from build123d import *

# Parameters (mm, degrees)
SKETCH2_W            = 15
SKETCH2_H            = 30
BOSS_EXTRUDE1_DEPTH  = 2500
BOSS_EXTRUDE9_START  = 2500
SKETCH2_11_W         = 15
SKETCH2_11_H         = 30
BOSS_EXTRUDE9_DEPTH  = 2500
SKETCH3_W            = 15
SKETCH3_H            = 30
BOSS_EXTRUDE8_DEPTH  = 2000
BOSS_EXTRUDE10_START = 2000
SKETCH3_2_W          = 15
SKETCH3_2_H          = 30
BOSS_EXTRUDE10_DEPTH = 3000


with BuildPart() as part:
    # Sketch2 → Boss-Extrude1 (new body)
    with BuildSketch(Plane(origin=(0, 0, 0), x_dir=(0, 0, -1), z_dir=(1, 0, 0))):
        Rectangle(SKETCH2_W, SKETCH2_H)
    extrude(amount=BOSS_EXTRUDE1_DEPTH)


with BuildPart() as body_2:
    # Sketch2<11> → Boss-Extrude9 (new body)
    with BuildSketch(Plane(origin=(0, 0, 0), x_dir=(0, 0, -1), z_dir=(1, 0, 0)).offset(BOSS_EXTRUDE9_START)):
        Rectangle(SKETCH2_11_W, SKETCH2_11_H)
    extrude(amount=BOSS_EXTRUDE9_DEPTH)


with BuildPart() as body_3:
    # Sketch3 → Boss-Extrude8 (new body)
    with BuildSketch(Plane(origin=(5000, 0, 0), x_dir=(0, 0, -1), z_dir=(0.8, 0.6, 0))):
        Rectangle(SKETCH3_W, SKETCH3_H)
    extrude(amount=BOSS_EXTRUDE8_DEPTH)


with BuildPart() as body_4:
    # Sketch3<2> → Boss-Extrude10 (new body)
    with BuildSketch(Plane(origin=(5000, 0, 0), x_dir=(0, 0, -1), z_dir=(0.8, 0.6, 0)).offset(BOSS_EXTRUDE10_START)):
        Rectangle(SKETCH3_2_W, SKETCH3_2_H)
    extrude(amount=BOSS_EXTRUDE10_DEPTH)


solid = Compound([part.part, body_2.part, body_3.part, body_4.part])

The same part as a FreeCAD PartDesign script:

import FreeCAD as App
import Part
import Sketcher
from FreeCAD import Vector

doc = App.newDocument("Part")
body = doc.addObject("PartDesign::Body", "Body")

sketch1 = doc.addObject("Sketcher::SketchObject", "Sketch")
body.addObject(sketch1)
sketch1.AttachmentSupport = (doc.YZ_Plane, [""])
sketch1.MapMode = "FlatFace"
sketch1.addGeometry(Part.LineSegment(Vector(15, 8, 0), Vector(-15, 8, 0)), False)
sketch1.addGeometry(Part.LineSegment(Vector(-15, 8, 0), Vector(-15, -8, 0)), False)
sketch1.addGeometry(Part.LineSegment(Vector(-15, -8, 0), Vector(15, -8, 0)), False)
sketch1.addGeometry(Part.LineSegment(Vector(15, -8, 0), Vector(15, 8, 0)), False)
sketch1.addConstraint(Sketcher.Constraint("Coincident", 0, 2, 1, 1))
sketch1.addConstraint(Sketcher.Constraint("Coincident", 1, 2, 2, 1))
sketch1.addConstraint(Sketcher.Constraint("Coincident", 2, 2, 3, 1))
sketch1.addConstraint(Sketcher.Constraint("Coincident", 3, 2, 0, 1))
sketch1.addConstraint(Sketcher.Constraint("Horizontal", 0))
sketch1.addConstraint(Sketcher.Constraint("Vertical", 1))
sketch1.addConstraint(Sketcher.Constraint("Horizontal", 2))
sketch1.addConstraint(Sketcher.Constraint("Vertical", 3))
sketch1.addConstraint(Sketcher.Constraint("Symmetric", 0, 2, 2, 2, -1, 1))
sketch1.addConstraint(Sketcher.Constraint("DistanceX", 0, 2, 0, 1, 30.0))
sketch1.addConstraint(Sketcher.Constraint("DistanceY", 1, 2, 1, 1, 15.0))
pad1 = doc.addObject("PartDesign::Pad", "Pad")
body.addObject(pad1)
pad1.Profile = sketch1
pad1.Length = 2500
body2 = doc.addObject("PartDesign::Body", "Body001")

sketch2 = doc.addObject("Sketcher::SketchObject", "Sketch001")
body2.addObject(sketch2)
sketch2.AttachmentSupport = (doc.getObject("YZ_Plane001"), [""])
sketch2.MapMode = "FlatFace"
sketch2.AttachmentOffset = App.Placement(Vector(0, 0, 2500), App.Rotation())
sketch2.addGeometry(Part.LineSegment(Vector(15, 8, 0), Vector(-15, 8, 0)), False)
sketch2.addGeometry(Part.LineSegment(Vector(-15, 8, 0), Vector(-15, -8, 0)), False)
sketch2.addGeometry(Part.LineSegment(Vector(-15, -8, 0), Vector(15, -8, 0)), False)
sketch2.addGeometry(Part.LineSegment(Vector(15, -8, 0), Vector(15, 8, 0)), False)
sketch2.addConstraint(Sketcher.Constraint("Coincident", 0, 2, 1, 1))
sketch2.addConstraint(Sketcher.Constraint("Coincident", 1, 2, 2, 1))
sketch2.addConstraint(Sketcher.Constraint("Coincident", 2, 2, 3, 1))
sketch2.addConstraint(Sketcher.Constraint("Coincident", 3, 2, 0, 1))
sketch2.addConstraint(Sketcher.Constraint("Horizontal", 0))
sketch2.addConstraint(Sketcher.Constraint("Vertical", 1))
sketch2.addConstraint(Sketcher.Constraint("Horizontal", 2))
sketch2.addConstraint(Sketcher.Constraint("Vertical", 3))
sketch2.addConstraint(Sketcher.Constraint("Symmetric", 0, 2, 2, 2, -1, 1))
sketch2.addConstraint(Sketcher.Constraint("DistanceX", 0, 2, 0, 1, 30.0))
sketch2.addConstraint(Sketcher.Constraint("DistanceY", 1, 2, 1, 1, 15.0))
pad2 = doc.addObject("PartDesign::Pad", "Pad001")
body2.addObject(pad2)
pad2.Profile = sketch2
pad2.Length = 2500
body3 = doc.addObject("PartDesign::Body", "Body002")

sketch3 = doc.addObject("Sketcher::SketchObject", "Sketch002")
body3.addObject(sketch3)
sketch3.Placement = App.Placement(Vector(5000, 0, 0), App.Rotation(Vector(0, 0, -1), Vector(-0.6, 0.8, 0), Vector(0.8, 0.6, 0), "ZXY"))
sketch3.addGeometry(Part.LineSegment(Vector(-8, 15, 0), Vector(-8, -15, 0)), False)
sketch3.addGeometry(Part.LineSegment(Vector(-8, -15, 0), Vector(8, -15, 0)), False)
sketch3.addGeometry(Part.LineSegment(Vector(8, -15, 0), Vector(8, 15, 0)), False)
sketch3.addGeometry(Part.LineSegment(Vector(8, 15, 0), Vector(-8, 15, 0)), False)
sketch3.addConstraint(Sketcher.Constraint("Coincident", 0, 2, 1, 1))
sketch3.addConstraint(Sketcher.Constraint("Coincident", 1, 2, 2, 1))
sketch3.addConstraint(Sketcher.Constraint("Coincident", 2, 2, 3, 1))
sketch3.addConstraint(Sketcher.Constraint("Coincident", 3, 2, 0, 1))
sketch3.addConstraint(Sketcher.Constraint("Vertical", 0))
sketch3.addConstraint(Sketcher.Constraint("Horizontal", 1))
sketch3.addConstraint(Sketcher.Constraint("Vertical", 2))
sketch3.addConstraint(Sketcher.Constraint("Horizontal", 3))
sketch3.addConstraint(Sketcher.Constraint("Symmetric", 0, 2, 2, 2, -1, 1))
sketch3.addConstraint(Sketcher.Constraint("DistanceX", 1, 1, 1, 2, 15.0))
sketch3.addConstraint(Sketcher.Constraint("DistanceY", 0, 2, 0, 1, 30.0))
pad3 = doc.addObject("PartDesign::Pad", "Pad002")
body3.addObject(pad3)
pad3.Profile = sketch3
pad3.Length = 2000
body4 = doc.addObject("PartDesign::Body", "Body003")

sketch4 = doc.addObject("Sketcher::SketchObject", "Sketch003")
body4.addObject(sketch4)
sketch4.Placement = App.Placement(Vector(6600, 1200, 0), App.Rotation(Vector(0, 0, -1), Vector(-0.6, 0.8, 0), Vector(0.8, 0.6, 0), "ZXY"))
sketch4.addGeometry(Part.LineSegment(Vector(-8, 15, 0), Vector(-8, -15, 0)), False)
sketch4.addGeometry(Part.LineSegment(Vector(-8, -15, 0), Vector(8, -15, 0)), False)
sketch4.addGeometry(Part.LineSegment(Vector(8, -15, 0), Vector(8, 15, 0)), False)
sketch4.addGeometry(Part.LineSegment(Vector(8, 15, 0), Vector(-8, 15, 0)), False)
sketch4.addConstraint(Sketcher.Constraint("Coincident", 0, 2, 1, 1))
sketch4.addConstraint(Sketcher.Constraint("Coincident", 1, 2, 2, 1))
sketch4.addConstraint(Sketcher.Constraint("Coincident", 2, 2, 3, 1))
sketch4.addConstraint(Sketcher.Constraint("Coincident", 3, 2, 0, 1))
sketch4.addConstraint(Sketcher.Constraint("Vertical", 0))
sketch4.addConstraint(Sketcher.Constraint("Horizontal", 1))
sketch4.addConstraint(Sketcher.Constraint("Vertical", 2))
sketch4.addConstraint(Sketcher.Constraint("Horizontal", 3))
sketch4.addConstraint(Sketcher.Constraint("Symmetric", 0, 2, 2, 2, -1, 1))
sketch4.addConstraint(Sketcher.Constraint("DistanceX", 1, 1, 1, 2, 15.0))
sketch4.addConstraint(Sketcher.Constraint("DistanceY", 0, 2, 0, 1, 30.0))
pad4 = doc.addObject("PartDesign::Pad", "Pad003")
body4.addObject(pad4)
pad4.Profile = sketch4
pad4.Length = 3000

doc.recompute()
